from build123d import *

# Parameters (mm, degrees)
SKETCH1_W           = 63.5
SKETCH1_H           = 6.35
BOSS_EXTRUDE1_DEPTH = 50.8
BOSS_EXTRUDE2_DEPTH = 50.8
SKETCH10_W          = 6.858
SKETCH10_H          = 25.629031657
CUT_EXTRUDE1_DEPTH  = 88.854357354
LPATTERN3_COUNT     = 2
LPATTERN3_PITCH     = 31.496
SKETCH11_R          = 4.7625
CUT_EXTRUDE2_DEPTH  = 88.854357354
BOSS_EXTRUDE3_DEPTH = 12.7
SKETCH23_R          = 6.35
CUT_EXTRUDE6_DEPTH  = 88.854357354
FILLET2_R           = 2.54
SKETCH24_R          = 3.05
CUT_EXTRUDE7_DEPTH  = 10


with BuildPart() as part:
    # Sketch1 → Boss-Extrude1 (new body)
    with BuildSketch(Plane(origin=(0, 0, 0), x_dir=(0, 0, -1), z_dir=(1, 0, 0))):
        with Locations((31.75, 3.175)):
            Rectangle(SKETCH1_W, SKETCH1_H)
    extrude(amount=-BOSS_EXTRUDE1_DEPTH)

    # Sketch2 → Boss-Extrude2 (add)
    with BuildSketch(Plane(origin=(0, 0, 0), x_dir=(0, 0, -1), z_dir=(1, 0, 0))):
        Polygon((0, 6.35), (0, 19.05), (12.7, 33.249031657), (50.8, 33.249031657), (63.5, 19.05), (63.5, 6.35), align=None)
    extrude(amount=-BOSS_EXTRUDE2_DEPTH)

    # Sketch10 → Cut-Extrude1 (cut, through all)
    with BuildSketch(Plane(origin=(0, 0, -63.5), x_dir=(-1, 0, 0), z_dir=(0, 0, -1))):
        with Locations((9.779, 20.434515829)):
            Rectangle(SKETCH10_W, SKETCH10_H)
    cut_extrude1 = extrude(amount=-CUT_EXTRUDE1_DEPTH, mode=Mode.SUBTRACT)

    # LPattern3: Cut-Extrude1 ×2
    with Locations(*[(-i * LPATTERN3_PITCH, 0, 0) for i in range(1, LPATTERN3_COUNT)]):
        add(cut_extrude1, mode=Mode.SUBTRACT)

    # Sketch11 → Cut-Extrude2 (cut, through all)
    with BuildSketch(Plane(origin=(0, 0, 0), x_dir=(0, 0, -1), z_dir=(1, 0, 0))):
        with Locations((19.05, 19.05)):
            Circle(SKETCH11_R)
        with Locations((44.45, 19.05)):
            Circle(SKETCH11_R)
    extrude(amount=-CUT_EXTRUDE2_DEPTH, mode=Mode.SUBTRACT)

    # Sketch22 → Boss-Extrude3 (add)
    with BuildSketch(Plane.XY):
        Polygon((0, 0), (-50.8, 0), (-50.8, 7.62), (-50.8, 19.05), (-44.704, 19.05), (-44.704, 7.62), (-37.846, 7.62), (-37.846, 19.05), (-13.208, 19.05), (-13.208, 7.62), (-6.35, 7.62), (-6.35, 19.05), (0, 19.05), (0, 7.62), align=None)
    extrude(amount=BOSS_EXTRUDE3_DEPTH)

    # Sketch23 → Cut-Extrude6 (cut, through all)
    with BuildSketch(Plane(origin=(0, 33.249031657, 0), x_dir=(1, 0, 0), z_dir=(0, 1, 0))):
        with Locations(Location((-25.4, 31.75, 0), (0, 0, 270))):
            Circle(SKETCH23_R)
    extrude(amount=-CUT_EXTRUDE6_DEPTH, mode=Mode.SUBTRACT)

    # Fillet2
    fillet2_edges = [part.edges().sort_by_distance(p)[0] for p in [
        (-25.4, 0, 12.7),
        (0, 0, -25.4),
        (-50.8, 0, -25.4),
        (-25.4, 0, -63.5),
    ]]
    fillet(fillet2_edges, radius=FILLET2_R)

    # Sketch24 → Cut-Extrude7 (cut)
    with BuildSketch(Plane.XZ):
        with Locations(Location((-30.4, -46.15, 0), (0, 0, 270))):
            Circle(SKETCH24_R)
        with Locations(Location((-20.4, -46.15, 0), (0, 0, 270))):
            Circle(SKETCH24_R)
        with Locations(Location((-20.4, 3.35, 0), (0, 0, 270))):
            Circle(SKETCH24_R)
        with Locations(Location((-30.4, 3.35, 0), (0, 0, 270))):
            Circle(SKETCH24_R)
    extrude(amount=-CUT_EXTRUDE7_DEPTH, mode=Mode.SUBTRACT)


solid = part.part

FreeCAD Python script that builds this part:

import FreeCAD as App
import Part
import Sketcher
Q = App.Units.Quantity


def edges_at(feature, points):
    """Names of the edges that pass closest to the given points."""
    edges = feature.Shape.Edges
    near = lambda p: min(range(len(edges)), key=lambda i: edges[i].distToShape(Part.Vertex(*p))[0])
    return sorted({f"Edge{near(p) + 1}" for p in points})


def add_polygon(sketch, points):
    """Adds a closed chain of lines whose ends are joined by coincident constraints."""
    first, n = sketch.GeometryCount, len(points)
    for a, b in zip(points, points[1:] + points[:1]):
        sketch.addGeometry(Part.LineSegment(App.Vector(*a, 0), App.Vector(*b, 0)), False)
    for i in range(n):
        sketch.addConstraint(Sketcher.Constraint("Coincident", first + i, 2, first + (i + 1) % n, 1))

doc = App.newDocument("Part")
body = doc.addObject("PartDesign::Body", "Body")

sketch1 = body.newObject("Sketcher::SketchObject", "Sketch")
sketch1.AttachmentSupport = (doc.getObject("YZ_Plane"), [""])
sketch1.MapMode = "FlatFace"
add_polygon(sketch1, [(6, 0), (0, 0), (0, -64), (6, -64)])
sketch1.addConstraint([
    Sketcher.Constraint("Horizontal", 0),
    Sketcher.Constraint("Vertical", 1),
    Sketcher.Constraint("Horizontal", 2),
    Sketcher.Constraint("Vertical", 3),
    Sketcher.Constraint("Coincident", 0, 2, -1, 1),
    Sketcher.Constraint("DistanceY", 1, 2, 1, 1, Q("2.5 in")),
    Sketcher.Constraint("DistanceX", 0, 2, 0, 1, Q("0.25 in")),
])
pad1 = body.newObject("PartDesign::Pad", "Pad")
pad1.Profile = sketch1
pad1.Length = Q("2 in")
pad1.Reversed = True

sketch2 = body.newObject("Sketcher::SketchObject", "Sketch001")
sketch2.AttachmentSupport = (doc.getObject("YZ_Plane"), [""])
sketch2.MapMode = "FlatFace"
add_polygon(sketch2, [(19, 0), (6, 0), (6, -64), (19, -64), (33, -51), (33, -13)])
sketch2.addConstraint([
    Sketcher.Constraint("Horizontal", 0),
    Sketcher.Constraint("Vertical", 1),
    Sketcher.Constraint("Horizontal", 2),
    Sketcher.Constraint("Vertical", 4),
    Sketcher.Constraint("PointOnObject", 0, 2, -1),
    Sketcher.Constraint("Vertical", 2, 2, 5, 2),
    Sketcher.Constraint("Equal", 3, 5),
    Sketcher.Constraint("DistanceX", 0, 2, 0, 1, Q("0.5 in")),
    Sketcher.Constraint("DistanceY", 1, 2, 1, 1, Q("2.5 in")),
    Sketcher.Constraint("DistanceY", 4, 1, 4, 2, Q("1.5 in")),
    Sketcher.Constraint("Distance", 3, Q("0.75 in")),
    Sketcher.Constraint("DistanceX", -1, 1, 0, 2, Q("0.25 in")),
])
pad2 = body.newObject("PartDesign::Pad", "Pad001")
pad2.Profile = sketch2
pad2.Length = Q("2 in")
pad2.Reversed = True

sketch3 = body.newObject("Sketcher::SketchObject", "Sketch002")
sketch3.AttachmentSupport = (doc.getObject("XY_Plane"), [""])
sketch3.MapMode = "FlatFace"
sketch3.AttachmentOffset = App.Placement(App.Vector(0, 0, -2.5 * 25.4), App.Rotation())
add_polygon(sketch3, [(-6, 33), (-6, 8), (-13, 8), (-13, 33)])
sketch3.addConstraint([
    Sketcher.Constraint("Vertical", 0),
    Sketcher.Constraint("Horizontal", 1),
    Sketcher.Constraint("Vertical", 2),
    Sketcher.Constraint("Horizontal", 3),
    Sketcher.Constraint("DistanceX", 1, 2, 1, 1, Q("0.27 in")),
    Sketcher.Constraint("DistanceY", -1, 1, 0, 2, Q("0.3 in")),
    Sketcher.Constraint("DistanceX", 0, 2, -1, 1, Q("0.25 in")),
    Sketcher.Constraint("DistanceY", 0, 2, 0, 1, 25.629032),
])
pocket1 = body.newObject("PartDesign::Pocket", "Pocket")
pocket1.Profile = sketch3
pocket1.Type = "ThroughAll"
pocket1.Reversed = True
doc.recompute()

linearpattern = body.newObject("PartDesign::LinearPattern", "LinearPattern")
linearpattern.Originals = [pocket1]
linearpattern.Direction = (doc.getObject("X_Axis"), [""])
linearpattern.Mode = "offset"
linearpattern.Offset = Q("1.24 in")
linearpattern.Occurrences = 2
linearpattern.Reversed = True
body.Tip = linearpattern

sketch4 = body.newObject("Sketcher::SketchObject", "Sketch003")
sketch4.AttachmentSupport = (doc.getObject("YZ_Plane"), [""])
sketch4.MapMode = "FlatFace"
sketch4.addGeometry([
    Part.Circle(App.Vector(19.1, -19.1, 0), App.Vector(0, 0, 1), 4.8),
    Part.Circle(App.Vector(19.1, -44.5, 0), App.Vector(0, 0, 1), 4.8),
], False)
sketch4.addConstraint([
    Sketcher.Constraint("Equal", 0, 1),
    Sketcher.Constraint("Vertical", 0, 3, 1, 3),
    Sketcher.Constraint("Diameter", 0, Q("0.375 in")),
    Sketcher.Constraint("DistanceY", 1, 3, 0, 3, Q("1 in")),
    Sketcher.Constraint("DistanceX", -1, 1, 0, 3, Q("0.75 in")),
    Sketcher.Constraint("DistanceY", 0, 3, -1, 1, Q("0.75 in")),
])
pocket2 = body.newObject("PartDesign::Pocket", "Pocket001")
pocket2.Profile = sketch4
pocket2.Type = "ThroughAll"

sketch5 = body.newObject("Sketcher::SketchObject", "Sketch004")
sketch5.AttachmentSupport = (doc.getObject("XY_Plane"), [""])
sketch5.MapMode = "FlatFace"
add_polygon(sketch5, [(-51, 0), (0, 0), (0, 19), (-6, 19), (-6, 8), (-13, 8), (-13, 19), (-38, 19), (-38, 8), (-45, 8), (-45, 19), (-51, 19)])
sketch5.addConstraint([
    Sketcher.Constraint("Horizontal", 0),
    Sketcher.Constraint("Vertical", 1),
    Sketcher.Constraint("Horizontal", 2),
    Sketcher.Constraint("Vertical", 3),
    Sketcher.Constraint("Horizontal", 4),
    Sketcher.Constraint("Vertical", 5),
    Sketcher.Constraint("Horizontal", 6),
    Sketcher.Constraint("Vertical", 7),
    Sketcher.Constraint("Horizontal", 8),
    Sketcher.Constraint("Vertical", 9),
    Sketcher.Constraint("Horizontal", 10),
    Sketcher.Constraint("Vertical", 11),
    Sketcher.Constraint("Coincident", 0, 2, -1, 1),
    Sketcher.Constraint("Horizontal", 2, 2, 5, 2),
    Sketcher.Constraint("Horizontal", 4, 2, 7, 2),
    Sketcher.Constraint("Horizontal", 6, 2, 9, 2),
    Sketcher.Constraint("Equal", 4, 8),
    Sketcher.Constraint("DistanceX", 0, 1, 0, 2, Q("2 in")),
    Sketcher.Constraint("DistanceX", 2, 2, 2, 1, Q("0.25 in")),
    Sketcher.Constraint("DistanceX", 4, 2, 4, 1, Q("0.27 in")),
    Sketcher.Constraint("DistanceX", 6, 2, 6, 1, Q("0.97 in")),
    Sketcher.Constraint("DistanceY", 1, 1, 1, 2, Q("0.75 in")),
    Sketcher.Constraint("DistanceY", 3, 2, 3, 1, Q("0.45 in")),
])
pad3 = body.newObject("PartDesign::Pad", "Pad002")
pad3.Profile = sketch5
pad3.Length = Q("0.5 in")

sketch6 = body.newObject("Sketcher::SketchObject", "Sketch005")
sketch6.AttachmentSupport = (doc.getObject("XZ_Plane"), [""])
sketch6.MapMode = "FlatFace"
sketch6.AttachmentOffset = App.Placement(App.Vector(0, 0, -33.249032), App.Rotation())
sketch6.addGeometry(Part.Circle(App.Vector(-25, -32, 0), App.Vector(0, 0, 1), 6), False)
sketch6.addConstraint([
    Sketcher.Constraint("Diameter", 0, Q("0.5 in")),
    Sketcher.Constraint("DistanceX", 0, 3, -1, 1, Q("1 in")),
    Sketcher.Constraint("DistanceY", 0, 3, -1, 1, Q("1.25 in")),
])
pocket3 = body.newObject("PartDesign::Pocket", "Pocket002")
pocket3.Profile = sketch6
pocket3.Type = "ThroughAll"
pocket3.Reversed = True
doc.recompute()

fillet = body.newObject("PartDesign::Fillet", "Fillet")
fillet.Base = (pocket3, edges_at(pocket3, [
    (-25.4, 0, 12.7),
    (0, 0, -25.4),
    (-50.8, 0, -25.4),
    (-25.4, 0, -63.5),
]))
fillet.Radius = Q("0.1 in")

sketch7 = body.newObject("Sketcher::SketchObject", "Sketch006")
sketch7.AttachmentSupport = (doc.getObject("XZ_Plane"), [""])
sketch7.MapMode = "FlatFace"
sketch7.addGeometry([
    Part.Circle(App.Vector(-30.4, -46.1, 0), App.Vector(0, 0, 1), 3),
    Part.Circle(App.Vector(-20.4, -46.1, 0), App.Vector(0, 0, 1), 3),
    Part.Circle(App.Vector(-20.4, 3.4, 0), App.Vector(0, 0, 1), 3),
    Part.Circle(App.Vector(-30.4, 3.4, 0), App.Vector(0, 0, 1), 3),
], False)
sketch7.addConstraint([
    Sketcher.Constraint("Equal", 0, 1),
    Sketcher.Constraint("Equal", 1, 2),
    Sketcher.Constraint("Equal", 2, 3),
    Sketcher.Constraint("Horizontal", 0, 3, 1, 3),
    Sketcher.Constraint("Horizontal", 2, 3, 3, 3),
    Sketcher.Constraint("Vertical", 1, 3, 2, 3),
    Sketcher.Constraint("Vertical", 0, 3, 3, 3),
    Sketcher.Constraint("Diameter", 0, 6.1),
    Sketcher.Constraint("DistanceX", 0, 3, -1, 1, 30.4),
    Sketcher.Constraint("DistanceY", 0, 3, -1, 1, 46.15),
    Sketcher.Constraint("DistanceX", 1, 3, -1, 1, 20.4),
    Sketcher.Constraint("DistanceY", -1, 1, 2, 3, 3.35),
])
pocket4 = body.newObject("PartDesign::Pocket", "Pocket003")
pocket4.Profile = sketch7
pocket4.Length = 10

doc.recompute()
